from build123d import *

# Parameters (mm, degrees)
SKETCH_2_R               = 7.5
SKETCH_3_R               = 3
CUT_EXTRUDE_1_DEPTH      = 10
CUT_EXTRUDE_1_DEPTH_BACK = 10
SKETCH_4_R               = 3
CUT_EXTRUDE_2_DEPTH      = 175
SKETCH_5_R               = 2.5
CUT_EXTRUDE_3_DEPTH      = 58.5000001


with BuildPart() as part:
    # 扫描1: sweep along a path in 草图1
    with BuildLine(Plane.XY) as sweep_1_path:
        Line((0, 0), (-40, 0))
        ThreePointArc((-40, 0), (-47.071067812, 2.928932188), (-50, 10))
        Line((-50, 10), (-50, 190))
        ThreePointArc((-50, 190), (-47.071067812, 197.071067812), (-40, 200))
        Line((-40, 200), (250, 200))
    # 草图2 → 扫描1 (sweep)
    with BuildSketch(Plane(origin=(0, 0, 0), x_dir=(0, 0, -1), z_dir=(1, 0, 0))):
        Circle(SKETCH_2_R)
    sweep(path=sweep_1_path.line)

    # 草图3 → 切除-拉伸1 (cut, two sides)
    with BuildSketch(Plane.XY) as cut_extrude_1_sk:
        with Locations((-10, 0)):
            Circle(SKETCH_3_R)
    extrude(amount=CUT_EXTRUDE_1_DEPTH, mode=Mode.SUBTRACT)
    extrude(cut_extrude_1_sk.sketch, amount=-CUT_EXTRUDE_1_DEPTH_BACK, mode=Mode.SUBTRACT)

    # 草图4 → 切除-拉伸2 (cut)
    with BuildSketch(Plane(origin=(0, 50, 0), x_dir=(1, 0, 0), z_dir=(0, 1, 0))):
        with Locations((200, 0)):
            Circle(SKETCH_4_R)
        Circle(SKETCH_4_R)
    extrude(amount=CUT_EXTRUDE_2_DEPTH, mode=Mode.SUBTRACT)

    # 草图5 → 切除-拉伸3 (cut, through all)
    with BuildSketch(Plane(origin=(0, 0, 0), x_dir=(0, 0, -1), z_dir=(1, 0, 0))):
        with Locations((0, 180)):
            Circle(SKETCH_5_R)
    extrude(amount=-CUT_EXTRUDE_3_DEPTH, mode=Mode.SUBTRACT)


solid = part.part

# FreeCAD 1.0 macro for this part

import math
import FreeCAD as App
import Part
import Sketcher
from FreeCAD import Vector

doc = App.newDocument("Part")
body = doc.addObject("PartDesign::Body", "Body")

sketch1 = doc.addObject("Sketcher::SketchObject", "Sketch")
body.addObject(sketch1)
sketch1.AttachmentSupport = (doc.YZ_Plane, [""])
sketch1.MapMode = "FlatFace"
sketch1.addGeometry(Part.Circle(Vector(0, 0, 0), Vector(0, 0, 1), 8), False)
sketch1.addConstraint([
    Sketcher.Constraint("Coincident", 0, 3, -1, 1),
    Sketcher.Constraint("Diameter", 0, 15.0),
])

sketch2 = doc.addObject("Sketcher::SketchObject", "Sketch001")
body.addObject(sketch2)
sketch2.AttachmentSupport = (doc.XY_Plane, [""])
sketch2.MapMode = "FlatFace"
sketch2.addGeometry([
    Part.LineSegment(Vector(0, 0, 0), Vector(-40, 0, 0)),
    Part.ArcOfCircle(Part.Circle(Vector(-40, 10, 0), Vector(0, 0, 1), 10), math.radians(180), math.radians(270)),
    Part.LineSegment(Vector(-50, 10, 0), Vector(-50, 190, 0)),
    Part.ArcOfCircle(Part.Circle(Vector(-40, 190, 0), Vector(0, 0, 1), 10), math.radians(90), math.radians(180)),
    Part.LineSegment(Vector(-40, 200, 0), Vector(250, 200, 0)),
], False)
sketch2.addConstraint([
    Sketcher.Constraint("Tangent", 0, 2, 1, 2),
    Sketcher.Constraint("Tangent", 1, 1, 2, 1),
    Sketcher.Constraint("Tangent", 2, 2, 3, 2),
    Sketcher.Constraint("Tangent", 3, 1, 4, 1),
    Sketcher.Constraint("Horizontal", 0),
    Sketcher.Constraint("Vertical", 2),
    Sketcher.Constraint("Horizontal", 4),
    Sketcher.Constraint("Coincident", 0, 1, -1, 1),
    Sketcher.Constraint("Equal", 1, 3),
    Sketcher.Constraint("Radius", 1, 10.0),
    Sketcher.Constraint("DistanceX", 0, 2, 0, 1, 40.0),
    Sketcher.Constraint("DistanceX", 4, 1, 4, 2, 290.0),
    Sketcher.Constraint("DistanceY", 2, 1, 2, 2, 180.0),
])
doc.recompute()

additivepipe = doc.addObject("PartDesign::AdditivePipe", "AdditivePipe")
body.addObject(additivepipe)
additivepipe.Profile = sketch1
additivepipe.Spine = (sketch2, ["Edge1", "Edge2", "Edge3", "Edge4", "Edge5"])

sketch3 = doc.addObject("Sketcher::SketchObject", "Sketch002")
body.addObject(sketch3)
sketch3.AttachmentSupport = (doc.XY_Plane, [""])
sketch3.MapMode = "FlatFace"
sketch3.addGeometry(Part.Circle(Vector(-10, 0, 0), Vector(0, 0, 1), 3), False)
sketch3.addConstraint([
    Sketcher.Constraint("PointOnObject", 0, 3, -1),
    Sketcher.Constraint("Diameter", 0, 6.0),
    Sketcher.Constraint("DistanceX", 0, 3, -1, 1, 10.0),
])
pocket1 = doc.addObject("PartDesign::Pocket", "Pocket")
body.addObject(pocket1)
pocket1.Profile = sketch3
pocket1.Type = "ThroughAll"
pocket1.Midplane = True

sketch4 = doc.addObject("Sketcher::SketchObject", "Sketch003")
body.addObject(sketch4)
sketch4.AttachmentSupport = (doc.XZ_Plane, [""])
sketch4.MapMode = "FlatFace"
sketch4.AttachmentOffset = App.Placement(Vector(0, 0, -50), App.Rotation())
sketch4.addGeometry([
    Part.Circle(Vector(200, 0, 0), Vector(0, 0, 1), 3),
    Part.Circle(Vector(0, 0, 0), Vector(0, 0, 1), 3),
], False)
sketch4.addConstraint([
    Sketcher.Constraint("Coincident", 1, 3, -1, 1),
    Sketcher.Constraint("Equal", 0, 1),
    Sketcher.Constraint("PointOnObject", 0, 3, -1),
    Sketcher.Constraint("Diameter", 0, 6.0),
    Sketcher.Constraint("DistanceX", -1, 1, 0, 3, 200.0),
])
pocket2 = doc.addObject("PartDesign::Pocket", "Pocket001")
body.addObject(pocket2)
pocket2.Profile = sketch4
pocket2.Length = 175

sketch5 = doc.addObject("Sketcher::SketchObject", "Sketch004")
body.addObject(sketch5)
sketch5.AttachmentSupport = (doc.YZ_Plane, [""])
sketch5.MapMode = "FlatFace"
sketch5.addGeometry(Part.Circle(Vector(180, 0, 0), Vector(0, 0, 1), 2.5), False)
sketch5.addConstraint([
    Sketcher.Constraint("PointOnObject", 0, 3, -1),
    Sketcher.Constraint("Diameter", 0, 5.0),
    Sketcher.Constraint("DistanceX", -1, 1, 0, 3, 180.0),
])
pocket3 = doc.addObject("PartDesign::Pocket", "Pocket002")
body.addObject(pocket3)
pocket3.Profile = sketch5
pocket3.Type = "ThroughAll"

doc.recompute()
